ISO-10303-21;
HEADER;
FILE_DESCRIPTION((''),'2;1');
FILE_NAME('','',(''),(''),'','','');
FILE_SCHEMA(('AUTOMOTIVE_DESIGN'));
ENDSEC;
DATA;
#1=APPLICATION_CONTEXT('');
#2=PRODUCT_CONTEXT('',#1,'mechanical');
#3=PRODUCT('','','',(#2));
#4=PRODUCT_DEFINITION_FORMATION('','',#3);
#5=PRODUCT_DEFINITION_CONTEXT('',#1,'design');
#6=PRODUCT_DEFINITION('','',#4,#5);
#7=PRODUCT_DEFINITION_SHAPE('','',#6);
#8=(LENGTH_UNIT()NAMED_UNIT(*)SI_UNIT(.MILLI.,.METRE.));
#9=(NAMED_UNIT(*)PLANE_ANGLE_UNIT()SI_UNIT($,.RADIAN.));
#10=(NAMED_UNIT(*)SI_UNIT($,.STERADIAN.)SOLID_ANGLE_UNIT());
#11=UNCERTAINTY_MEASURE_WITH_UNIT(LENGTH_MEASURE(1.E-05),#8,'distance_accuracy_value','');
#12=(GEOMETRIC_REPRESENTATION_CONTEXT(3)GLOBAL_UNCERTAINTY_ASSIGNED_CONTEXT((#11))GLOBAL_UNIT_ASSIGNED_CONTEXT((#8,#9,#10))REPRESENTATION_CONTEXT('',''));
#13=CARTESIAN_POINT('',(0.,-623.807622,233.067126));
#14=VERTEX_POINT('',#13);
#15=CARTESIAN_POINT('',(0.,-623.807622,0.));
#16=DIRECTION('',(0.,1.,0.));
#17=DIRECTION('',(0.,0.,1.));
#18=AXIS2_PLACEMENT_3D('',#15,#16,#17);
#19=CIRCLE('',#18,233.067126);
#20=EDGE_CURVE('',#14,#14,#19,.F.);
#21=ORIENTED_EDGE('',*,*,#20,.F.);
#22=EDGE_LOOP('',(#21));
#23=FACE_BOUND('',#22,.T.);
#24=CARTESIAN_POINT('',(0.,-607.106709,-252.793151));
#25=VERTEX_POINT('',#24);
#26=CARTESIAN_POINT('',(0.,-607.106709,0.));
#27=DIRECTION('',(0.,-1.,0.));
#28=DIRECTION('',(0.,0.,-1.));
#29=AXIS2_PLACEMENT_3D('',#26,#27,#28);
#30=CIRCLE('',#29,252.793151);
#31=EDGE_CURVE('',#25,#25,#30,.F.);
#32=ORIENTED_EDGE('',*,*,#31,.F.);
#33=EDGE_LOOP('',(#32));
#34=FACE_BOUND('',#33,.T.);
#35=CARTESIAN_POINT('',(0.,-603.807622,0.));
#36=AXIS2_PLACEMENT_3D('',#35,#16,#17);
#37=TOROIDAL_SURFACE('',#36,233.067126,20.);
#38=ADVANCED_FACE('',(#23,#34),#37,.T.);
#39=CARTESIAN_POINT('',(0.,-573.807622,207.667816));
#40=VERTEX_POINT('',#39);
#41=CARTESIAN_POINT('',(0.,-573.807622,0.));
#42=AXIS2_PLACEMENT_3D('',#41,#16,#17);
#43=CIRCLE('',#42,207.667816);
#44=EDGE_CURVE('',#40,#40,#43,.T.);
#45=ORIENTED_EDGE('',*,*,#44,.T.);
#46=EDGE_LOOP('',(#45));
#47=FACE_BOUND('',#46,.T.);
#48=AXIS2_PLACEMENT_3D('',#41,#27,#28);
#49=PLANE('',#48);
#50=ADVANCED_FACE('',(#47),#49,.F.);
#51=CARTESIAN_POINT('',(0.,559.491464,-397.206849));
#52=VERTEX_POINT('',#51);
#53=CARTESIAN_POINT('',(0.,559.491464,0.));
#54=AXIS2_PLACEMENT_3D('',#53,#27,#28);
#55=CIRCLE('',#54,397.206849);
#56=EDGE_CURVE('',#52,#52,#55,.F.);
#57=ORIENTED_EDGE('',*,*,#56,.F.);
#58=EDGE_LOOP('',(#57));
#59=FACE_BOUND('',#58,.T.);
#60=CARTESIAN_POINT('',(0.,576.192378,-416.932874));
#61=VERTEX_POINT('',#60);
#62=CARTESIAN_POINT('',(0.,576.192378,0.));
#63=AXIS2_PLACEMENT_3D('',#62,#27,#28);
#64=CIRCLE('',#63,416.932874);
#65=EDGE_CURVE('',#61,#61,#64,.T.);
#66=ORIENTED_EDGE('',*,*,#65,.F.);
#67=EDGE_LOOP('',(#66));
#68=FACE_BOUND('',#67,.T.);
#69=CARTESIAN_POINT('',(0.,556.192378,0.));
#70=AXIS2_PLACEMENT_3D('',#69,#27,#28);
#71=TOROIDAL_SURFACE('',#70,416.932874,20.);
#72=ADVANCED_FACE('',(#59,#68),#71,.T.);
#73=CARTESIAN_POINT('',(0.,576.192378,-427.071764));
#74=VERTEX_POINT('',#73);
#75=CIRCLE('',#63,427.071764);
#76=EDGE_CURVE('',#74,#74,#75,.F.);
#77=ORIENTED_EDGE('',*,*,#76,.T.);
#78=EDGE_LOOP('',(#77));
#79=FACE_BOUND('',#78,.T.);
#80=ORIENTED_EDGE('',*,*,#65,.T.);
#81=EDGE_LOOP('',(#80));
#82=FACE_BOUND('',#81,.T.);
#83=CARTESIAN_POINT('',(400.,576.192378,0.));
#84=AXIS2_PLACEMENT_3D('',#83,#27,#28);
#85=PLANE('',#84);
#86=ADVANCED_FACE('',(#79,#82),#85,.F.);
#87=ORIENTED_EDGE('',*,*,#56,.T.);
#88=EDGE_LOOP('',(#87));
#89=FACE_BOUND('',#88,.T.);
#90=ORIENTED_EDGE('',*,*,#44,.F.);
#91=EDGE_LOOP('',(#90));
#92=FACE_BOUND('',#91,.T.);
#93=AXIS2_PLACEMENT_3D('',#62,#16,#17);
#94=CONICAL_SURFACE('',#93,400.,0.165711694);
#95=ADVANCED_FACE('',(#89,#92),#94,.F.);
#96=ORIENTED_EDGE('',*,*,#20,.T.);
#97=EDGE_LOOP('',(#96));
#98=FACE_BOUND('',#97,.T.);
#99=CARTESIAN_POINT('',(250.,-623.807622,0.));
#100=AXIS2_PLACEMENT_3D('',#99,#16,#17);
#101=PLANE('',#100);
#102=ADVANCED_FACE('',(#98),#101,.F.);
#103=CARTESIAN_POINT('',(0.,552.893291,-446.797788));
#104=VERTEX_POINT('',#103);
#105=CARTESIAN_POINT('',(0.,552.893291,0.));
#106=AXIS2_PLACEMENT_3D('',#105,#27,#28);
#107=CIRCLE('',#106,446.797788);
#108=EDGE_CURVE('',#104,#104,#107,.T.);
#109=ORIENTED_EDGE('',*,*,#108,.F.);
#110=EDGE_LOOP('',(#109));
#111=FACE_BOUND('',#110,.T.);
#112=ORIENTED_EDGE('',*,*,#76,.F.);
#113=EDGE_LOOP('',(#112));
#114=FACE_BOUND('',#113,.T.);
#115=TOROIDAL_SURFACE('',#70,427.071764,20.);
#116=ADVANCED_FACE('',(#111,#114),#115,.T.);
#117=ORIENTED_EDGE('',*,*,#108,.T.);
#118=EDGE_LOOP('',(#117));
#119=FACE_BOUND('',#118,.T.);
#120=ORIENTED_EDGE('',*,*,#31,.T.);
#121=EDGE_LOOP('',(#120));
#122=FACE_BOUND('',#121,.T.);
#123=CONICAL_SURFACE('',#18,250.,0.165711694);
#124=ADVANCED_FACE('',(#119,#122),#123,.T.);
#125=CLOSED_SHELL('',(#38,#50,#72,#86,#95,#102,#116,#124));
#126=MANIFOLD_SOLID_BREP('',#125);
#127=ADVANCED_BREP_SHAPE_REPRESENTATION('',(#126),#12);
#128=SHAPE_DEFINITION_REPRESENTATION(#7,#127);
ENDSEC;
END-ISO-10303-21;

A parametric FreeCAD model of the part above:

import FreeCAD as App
import Part
import Sketcher

V = App.Vector
Q = App.Units.Quantity


def edges_at(feature, points):
    """Names of the edges that pass closest to the given points."""
    edges = feature.Shape.Edges
    near = lambda p: min(range(len(edges)), key=lambda i: edges[i].distToShape(Part.Vertex(*p))[0])
    return sorted({f"Edge{near(p) + 1}" for p in points})


def add_polygon(sketch, points):
    """Adds a closed chain of lines whose ends are joined by coincident constraints."""
    first, n = sketch.GeometryCount, len(points)
    for a, b in zip(points, points[1:] + points[:1]):
        sketch.addGeometry(Part.LineSegment(App.Vector(*a, 0), App.Vector(*b, 0)), False)
    for i in range(n):
        sketch.addConstraint(Sketcher.Constraint("Coincident", first + i, 2, first + (i + 1) % n, 1))

doc = App.newDocument("Part")
body = doc.addObject("PartDesign::Body", "Body")

sketch1 = body.newObject("Sketcher::SketchObject", "Sketch")
sketch1.AttachmentSupport = (doc.getObject("XY_Plane"), [""])
sketch1.MapMode = "FlatFace"
add_polygon(sketch1, [(0, -573.807622), (0, -623.807622), (250, -623.807622), (450.694453, 576.192378), (400, 576.192378), (207.667816, -573.807622)])
sketch1.addConstraint([
    Sketcher.Constraint("Vertical", 0),
    Sketcher.Constraint("Horizontal", 1),
    Sketcher.Constraint("Horizontal", 3),
    Sketcher.Constraint("Horizontal", 5),
    Sketcher.Constraint("PointOnObject", 0, 2, -2),
    Sketcher.Constraint("Parallel", 2, 4),
    Sketcher.Constraint("DistanceX", 1, 1, 1, 2, Q("250 mm")),
    Sketcher.Constraint("DistanceY", 0, 2, 0, 1, Q("50 mm")),
    Sketcher.Constraint("DistanceX", -1, 1, 3, 2, Q("400 mm")),
    Sketcher.Constraint("DistanceY", 1, 2, 2, 2, Q("1200 mm")),
    Sketcher.Constraint("DistanceX", 3, 2, 3, 1, Q("50.694453 mm")),
    Sketcher.Constraint("DistanceY", 0, 2, -1, 1, Q("623.807622 mm")),
])
revolution = body.newObject("PartDesign::Revolution", "Revolution")
revolution.Profile = sketch1
revolution.ReferenceAxis = (sketch1, ["V_Axis"])
revolution.Angle = 360
doc.recompute()

fillet = body.newObject("PartDesign::Fillet", "Fillet")
fillet.Base = (revolution, edges_at(revolution, [(-400, 576.192, 0), (-450.694, 576.192, 0), (-250, -623.808, 0)]))
fillet.Radius = 20

doc.recompute()
